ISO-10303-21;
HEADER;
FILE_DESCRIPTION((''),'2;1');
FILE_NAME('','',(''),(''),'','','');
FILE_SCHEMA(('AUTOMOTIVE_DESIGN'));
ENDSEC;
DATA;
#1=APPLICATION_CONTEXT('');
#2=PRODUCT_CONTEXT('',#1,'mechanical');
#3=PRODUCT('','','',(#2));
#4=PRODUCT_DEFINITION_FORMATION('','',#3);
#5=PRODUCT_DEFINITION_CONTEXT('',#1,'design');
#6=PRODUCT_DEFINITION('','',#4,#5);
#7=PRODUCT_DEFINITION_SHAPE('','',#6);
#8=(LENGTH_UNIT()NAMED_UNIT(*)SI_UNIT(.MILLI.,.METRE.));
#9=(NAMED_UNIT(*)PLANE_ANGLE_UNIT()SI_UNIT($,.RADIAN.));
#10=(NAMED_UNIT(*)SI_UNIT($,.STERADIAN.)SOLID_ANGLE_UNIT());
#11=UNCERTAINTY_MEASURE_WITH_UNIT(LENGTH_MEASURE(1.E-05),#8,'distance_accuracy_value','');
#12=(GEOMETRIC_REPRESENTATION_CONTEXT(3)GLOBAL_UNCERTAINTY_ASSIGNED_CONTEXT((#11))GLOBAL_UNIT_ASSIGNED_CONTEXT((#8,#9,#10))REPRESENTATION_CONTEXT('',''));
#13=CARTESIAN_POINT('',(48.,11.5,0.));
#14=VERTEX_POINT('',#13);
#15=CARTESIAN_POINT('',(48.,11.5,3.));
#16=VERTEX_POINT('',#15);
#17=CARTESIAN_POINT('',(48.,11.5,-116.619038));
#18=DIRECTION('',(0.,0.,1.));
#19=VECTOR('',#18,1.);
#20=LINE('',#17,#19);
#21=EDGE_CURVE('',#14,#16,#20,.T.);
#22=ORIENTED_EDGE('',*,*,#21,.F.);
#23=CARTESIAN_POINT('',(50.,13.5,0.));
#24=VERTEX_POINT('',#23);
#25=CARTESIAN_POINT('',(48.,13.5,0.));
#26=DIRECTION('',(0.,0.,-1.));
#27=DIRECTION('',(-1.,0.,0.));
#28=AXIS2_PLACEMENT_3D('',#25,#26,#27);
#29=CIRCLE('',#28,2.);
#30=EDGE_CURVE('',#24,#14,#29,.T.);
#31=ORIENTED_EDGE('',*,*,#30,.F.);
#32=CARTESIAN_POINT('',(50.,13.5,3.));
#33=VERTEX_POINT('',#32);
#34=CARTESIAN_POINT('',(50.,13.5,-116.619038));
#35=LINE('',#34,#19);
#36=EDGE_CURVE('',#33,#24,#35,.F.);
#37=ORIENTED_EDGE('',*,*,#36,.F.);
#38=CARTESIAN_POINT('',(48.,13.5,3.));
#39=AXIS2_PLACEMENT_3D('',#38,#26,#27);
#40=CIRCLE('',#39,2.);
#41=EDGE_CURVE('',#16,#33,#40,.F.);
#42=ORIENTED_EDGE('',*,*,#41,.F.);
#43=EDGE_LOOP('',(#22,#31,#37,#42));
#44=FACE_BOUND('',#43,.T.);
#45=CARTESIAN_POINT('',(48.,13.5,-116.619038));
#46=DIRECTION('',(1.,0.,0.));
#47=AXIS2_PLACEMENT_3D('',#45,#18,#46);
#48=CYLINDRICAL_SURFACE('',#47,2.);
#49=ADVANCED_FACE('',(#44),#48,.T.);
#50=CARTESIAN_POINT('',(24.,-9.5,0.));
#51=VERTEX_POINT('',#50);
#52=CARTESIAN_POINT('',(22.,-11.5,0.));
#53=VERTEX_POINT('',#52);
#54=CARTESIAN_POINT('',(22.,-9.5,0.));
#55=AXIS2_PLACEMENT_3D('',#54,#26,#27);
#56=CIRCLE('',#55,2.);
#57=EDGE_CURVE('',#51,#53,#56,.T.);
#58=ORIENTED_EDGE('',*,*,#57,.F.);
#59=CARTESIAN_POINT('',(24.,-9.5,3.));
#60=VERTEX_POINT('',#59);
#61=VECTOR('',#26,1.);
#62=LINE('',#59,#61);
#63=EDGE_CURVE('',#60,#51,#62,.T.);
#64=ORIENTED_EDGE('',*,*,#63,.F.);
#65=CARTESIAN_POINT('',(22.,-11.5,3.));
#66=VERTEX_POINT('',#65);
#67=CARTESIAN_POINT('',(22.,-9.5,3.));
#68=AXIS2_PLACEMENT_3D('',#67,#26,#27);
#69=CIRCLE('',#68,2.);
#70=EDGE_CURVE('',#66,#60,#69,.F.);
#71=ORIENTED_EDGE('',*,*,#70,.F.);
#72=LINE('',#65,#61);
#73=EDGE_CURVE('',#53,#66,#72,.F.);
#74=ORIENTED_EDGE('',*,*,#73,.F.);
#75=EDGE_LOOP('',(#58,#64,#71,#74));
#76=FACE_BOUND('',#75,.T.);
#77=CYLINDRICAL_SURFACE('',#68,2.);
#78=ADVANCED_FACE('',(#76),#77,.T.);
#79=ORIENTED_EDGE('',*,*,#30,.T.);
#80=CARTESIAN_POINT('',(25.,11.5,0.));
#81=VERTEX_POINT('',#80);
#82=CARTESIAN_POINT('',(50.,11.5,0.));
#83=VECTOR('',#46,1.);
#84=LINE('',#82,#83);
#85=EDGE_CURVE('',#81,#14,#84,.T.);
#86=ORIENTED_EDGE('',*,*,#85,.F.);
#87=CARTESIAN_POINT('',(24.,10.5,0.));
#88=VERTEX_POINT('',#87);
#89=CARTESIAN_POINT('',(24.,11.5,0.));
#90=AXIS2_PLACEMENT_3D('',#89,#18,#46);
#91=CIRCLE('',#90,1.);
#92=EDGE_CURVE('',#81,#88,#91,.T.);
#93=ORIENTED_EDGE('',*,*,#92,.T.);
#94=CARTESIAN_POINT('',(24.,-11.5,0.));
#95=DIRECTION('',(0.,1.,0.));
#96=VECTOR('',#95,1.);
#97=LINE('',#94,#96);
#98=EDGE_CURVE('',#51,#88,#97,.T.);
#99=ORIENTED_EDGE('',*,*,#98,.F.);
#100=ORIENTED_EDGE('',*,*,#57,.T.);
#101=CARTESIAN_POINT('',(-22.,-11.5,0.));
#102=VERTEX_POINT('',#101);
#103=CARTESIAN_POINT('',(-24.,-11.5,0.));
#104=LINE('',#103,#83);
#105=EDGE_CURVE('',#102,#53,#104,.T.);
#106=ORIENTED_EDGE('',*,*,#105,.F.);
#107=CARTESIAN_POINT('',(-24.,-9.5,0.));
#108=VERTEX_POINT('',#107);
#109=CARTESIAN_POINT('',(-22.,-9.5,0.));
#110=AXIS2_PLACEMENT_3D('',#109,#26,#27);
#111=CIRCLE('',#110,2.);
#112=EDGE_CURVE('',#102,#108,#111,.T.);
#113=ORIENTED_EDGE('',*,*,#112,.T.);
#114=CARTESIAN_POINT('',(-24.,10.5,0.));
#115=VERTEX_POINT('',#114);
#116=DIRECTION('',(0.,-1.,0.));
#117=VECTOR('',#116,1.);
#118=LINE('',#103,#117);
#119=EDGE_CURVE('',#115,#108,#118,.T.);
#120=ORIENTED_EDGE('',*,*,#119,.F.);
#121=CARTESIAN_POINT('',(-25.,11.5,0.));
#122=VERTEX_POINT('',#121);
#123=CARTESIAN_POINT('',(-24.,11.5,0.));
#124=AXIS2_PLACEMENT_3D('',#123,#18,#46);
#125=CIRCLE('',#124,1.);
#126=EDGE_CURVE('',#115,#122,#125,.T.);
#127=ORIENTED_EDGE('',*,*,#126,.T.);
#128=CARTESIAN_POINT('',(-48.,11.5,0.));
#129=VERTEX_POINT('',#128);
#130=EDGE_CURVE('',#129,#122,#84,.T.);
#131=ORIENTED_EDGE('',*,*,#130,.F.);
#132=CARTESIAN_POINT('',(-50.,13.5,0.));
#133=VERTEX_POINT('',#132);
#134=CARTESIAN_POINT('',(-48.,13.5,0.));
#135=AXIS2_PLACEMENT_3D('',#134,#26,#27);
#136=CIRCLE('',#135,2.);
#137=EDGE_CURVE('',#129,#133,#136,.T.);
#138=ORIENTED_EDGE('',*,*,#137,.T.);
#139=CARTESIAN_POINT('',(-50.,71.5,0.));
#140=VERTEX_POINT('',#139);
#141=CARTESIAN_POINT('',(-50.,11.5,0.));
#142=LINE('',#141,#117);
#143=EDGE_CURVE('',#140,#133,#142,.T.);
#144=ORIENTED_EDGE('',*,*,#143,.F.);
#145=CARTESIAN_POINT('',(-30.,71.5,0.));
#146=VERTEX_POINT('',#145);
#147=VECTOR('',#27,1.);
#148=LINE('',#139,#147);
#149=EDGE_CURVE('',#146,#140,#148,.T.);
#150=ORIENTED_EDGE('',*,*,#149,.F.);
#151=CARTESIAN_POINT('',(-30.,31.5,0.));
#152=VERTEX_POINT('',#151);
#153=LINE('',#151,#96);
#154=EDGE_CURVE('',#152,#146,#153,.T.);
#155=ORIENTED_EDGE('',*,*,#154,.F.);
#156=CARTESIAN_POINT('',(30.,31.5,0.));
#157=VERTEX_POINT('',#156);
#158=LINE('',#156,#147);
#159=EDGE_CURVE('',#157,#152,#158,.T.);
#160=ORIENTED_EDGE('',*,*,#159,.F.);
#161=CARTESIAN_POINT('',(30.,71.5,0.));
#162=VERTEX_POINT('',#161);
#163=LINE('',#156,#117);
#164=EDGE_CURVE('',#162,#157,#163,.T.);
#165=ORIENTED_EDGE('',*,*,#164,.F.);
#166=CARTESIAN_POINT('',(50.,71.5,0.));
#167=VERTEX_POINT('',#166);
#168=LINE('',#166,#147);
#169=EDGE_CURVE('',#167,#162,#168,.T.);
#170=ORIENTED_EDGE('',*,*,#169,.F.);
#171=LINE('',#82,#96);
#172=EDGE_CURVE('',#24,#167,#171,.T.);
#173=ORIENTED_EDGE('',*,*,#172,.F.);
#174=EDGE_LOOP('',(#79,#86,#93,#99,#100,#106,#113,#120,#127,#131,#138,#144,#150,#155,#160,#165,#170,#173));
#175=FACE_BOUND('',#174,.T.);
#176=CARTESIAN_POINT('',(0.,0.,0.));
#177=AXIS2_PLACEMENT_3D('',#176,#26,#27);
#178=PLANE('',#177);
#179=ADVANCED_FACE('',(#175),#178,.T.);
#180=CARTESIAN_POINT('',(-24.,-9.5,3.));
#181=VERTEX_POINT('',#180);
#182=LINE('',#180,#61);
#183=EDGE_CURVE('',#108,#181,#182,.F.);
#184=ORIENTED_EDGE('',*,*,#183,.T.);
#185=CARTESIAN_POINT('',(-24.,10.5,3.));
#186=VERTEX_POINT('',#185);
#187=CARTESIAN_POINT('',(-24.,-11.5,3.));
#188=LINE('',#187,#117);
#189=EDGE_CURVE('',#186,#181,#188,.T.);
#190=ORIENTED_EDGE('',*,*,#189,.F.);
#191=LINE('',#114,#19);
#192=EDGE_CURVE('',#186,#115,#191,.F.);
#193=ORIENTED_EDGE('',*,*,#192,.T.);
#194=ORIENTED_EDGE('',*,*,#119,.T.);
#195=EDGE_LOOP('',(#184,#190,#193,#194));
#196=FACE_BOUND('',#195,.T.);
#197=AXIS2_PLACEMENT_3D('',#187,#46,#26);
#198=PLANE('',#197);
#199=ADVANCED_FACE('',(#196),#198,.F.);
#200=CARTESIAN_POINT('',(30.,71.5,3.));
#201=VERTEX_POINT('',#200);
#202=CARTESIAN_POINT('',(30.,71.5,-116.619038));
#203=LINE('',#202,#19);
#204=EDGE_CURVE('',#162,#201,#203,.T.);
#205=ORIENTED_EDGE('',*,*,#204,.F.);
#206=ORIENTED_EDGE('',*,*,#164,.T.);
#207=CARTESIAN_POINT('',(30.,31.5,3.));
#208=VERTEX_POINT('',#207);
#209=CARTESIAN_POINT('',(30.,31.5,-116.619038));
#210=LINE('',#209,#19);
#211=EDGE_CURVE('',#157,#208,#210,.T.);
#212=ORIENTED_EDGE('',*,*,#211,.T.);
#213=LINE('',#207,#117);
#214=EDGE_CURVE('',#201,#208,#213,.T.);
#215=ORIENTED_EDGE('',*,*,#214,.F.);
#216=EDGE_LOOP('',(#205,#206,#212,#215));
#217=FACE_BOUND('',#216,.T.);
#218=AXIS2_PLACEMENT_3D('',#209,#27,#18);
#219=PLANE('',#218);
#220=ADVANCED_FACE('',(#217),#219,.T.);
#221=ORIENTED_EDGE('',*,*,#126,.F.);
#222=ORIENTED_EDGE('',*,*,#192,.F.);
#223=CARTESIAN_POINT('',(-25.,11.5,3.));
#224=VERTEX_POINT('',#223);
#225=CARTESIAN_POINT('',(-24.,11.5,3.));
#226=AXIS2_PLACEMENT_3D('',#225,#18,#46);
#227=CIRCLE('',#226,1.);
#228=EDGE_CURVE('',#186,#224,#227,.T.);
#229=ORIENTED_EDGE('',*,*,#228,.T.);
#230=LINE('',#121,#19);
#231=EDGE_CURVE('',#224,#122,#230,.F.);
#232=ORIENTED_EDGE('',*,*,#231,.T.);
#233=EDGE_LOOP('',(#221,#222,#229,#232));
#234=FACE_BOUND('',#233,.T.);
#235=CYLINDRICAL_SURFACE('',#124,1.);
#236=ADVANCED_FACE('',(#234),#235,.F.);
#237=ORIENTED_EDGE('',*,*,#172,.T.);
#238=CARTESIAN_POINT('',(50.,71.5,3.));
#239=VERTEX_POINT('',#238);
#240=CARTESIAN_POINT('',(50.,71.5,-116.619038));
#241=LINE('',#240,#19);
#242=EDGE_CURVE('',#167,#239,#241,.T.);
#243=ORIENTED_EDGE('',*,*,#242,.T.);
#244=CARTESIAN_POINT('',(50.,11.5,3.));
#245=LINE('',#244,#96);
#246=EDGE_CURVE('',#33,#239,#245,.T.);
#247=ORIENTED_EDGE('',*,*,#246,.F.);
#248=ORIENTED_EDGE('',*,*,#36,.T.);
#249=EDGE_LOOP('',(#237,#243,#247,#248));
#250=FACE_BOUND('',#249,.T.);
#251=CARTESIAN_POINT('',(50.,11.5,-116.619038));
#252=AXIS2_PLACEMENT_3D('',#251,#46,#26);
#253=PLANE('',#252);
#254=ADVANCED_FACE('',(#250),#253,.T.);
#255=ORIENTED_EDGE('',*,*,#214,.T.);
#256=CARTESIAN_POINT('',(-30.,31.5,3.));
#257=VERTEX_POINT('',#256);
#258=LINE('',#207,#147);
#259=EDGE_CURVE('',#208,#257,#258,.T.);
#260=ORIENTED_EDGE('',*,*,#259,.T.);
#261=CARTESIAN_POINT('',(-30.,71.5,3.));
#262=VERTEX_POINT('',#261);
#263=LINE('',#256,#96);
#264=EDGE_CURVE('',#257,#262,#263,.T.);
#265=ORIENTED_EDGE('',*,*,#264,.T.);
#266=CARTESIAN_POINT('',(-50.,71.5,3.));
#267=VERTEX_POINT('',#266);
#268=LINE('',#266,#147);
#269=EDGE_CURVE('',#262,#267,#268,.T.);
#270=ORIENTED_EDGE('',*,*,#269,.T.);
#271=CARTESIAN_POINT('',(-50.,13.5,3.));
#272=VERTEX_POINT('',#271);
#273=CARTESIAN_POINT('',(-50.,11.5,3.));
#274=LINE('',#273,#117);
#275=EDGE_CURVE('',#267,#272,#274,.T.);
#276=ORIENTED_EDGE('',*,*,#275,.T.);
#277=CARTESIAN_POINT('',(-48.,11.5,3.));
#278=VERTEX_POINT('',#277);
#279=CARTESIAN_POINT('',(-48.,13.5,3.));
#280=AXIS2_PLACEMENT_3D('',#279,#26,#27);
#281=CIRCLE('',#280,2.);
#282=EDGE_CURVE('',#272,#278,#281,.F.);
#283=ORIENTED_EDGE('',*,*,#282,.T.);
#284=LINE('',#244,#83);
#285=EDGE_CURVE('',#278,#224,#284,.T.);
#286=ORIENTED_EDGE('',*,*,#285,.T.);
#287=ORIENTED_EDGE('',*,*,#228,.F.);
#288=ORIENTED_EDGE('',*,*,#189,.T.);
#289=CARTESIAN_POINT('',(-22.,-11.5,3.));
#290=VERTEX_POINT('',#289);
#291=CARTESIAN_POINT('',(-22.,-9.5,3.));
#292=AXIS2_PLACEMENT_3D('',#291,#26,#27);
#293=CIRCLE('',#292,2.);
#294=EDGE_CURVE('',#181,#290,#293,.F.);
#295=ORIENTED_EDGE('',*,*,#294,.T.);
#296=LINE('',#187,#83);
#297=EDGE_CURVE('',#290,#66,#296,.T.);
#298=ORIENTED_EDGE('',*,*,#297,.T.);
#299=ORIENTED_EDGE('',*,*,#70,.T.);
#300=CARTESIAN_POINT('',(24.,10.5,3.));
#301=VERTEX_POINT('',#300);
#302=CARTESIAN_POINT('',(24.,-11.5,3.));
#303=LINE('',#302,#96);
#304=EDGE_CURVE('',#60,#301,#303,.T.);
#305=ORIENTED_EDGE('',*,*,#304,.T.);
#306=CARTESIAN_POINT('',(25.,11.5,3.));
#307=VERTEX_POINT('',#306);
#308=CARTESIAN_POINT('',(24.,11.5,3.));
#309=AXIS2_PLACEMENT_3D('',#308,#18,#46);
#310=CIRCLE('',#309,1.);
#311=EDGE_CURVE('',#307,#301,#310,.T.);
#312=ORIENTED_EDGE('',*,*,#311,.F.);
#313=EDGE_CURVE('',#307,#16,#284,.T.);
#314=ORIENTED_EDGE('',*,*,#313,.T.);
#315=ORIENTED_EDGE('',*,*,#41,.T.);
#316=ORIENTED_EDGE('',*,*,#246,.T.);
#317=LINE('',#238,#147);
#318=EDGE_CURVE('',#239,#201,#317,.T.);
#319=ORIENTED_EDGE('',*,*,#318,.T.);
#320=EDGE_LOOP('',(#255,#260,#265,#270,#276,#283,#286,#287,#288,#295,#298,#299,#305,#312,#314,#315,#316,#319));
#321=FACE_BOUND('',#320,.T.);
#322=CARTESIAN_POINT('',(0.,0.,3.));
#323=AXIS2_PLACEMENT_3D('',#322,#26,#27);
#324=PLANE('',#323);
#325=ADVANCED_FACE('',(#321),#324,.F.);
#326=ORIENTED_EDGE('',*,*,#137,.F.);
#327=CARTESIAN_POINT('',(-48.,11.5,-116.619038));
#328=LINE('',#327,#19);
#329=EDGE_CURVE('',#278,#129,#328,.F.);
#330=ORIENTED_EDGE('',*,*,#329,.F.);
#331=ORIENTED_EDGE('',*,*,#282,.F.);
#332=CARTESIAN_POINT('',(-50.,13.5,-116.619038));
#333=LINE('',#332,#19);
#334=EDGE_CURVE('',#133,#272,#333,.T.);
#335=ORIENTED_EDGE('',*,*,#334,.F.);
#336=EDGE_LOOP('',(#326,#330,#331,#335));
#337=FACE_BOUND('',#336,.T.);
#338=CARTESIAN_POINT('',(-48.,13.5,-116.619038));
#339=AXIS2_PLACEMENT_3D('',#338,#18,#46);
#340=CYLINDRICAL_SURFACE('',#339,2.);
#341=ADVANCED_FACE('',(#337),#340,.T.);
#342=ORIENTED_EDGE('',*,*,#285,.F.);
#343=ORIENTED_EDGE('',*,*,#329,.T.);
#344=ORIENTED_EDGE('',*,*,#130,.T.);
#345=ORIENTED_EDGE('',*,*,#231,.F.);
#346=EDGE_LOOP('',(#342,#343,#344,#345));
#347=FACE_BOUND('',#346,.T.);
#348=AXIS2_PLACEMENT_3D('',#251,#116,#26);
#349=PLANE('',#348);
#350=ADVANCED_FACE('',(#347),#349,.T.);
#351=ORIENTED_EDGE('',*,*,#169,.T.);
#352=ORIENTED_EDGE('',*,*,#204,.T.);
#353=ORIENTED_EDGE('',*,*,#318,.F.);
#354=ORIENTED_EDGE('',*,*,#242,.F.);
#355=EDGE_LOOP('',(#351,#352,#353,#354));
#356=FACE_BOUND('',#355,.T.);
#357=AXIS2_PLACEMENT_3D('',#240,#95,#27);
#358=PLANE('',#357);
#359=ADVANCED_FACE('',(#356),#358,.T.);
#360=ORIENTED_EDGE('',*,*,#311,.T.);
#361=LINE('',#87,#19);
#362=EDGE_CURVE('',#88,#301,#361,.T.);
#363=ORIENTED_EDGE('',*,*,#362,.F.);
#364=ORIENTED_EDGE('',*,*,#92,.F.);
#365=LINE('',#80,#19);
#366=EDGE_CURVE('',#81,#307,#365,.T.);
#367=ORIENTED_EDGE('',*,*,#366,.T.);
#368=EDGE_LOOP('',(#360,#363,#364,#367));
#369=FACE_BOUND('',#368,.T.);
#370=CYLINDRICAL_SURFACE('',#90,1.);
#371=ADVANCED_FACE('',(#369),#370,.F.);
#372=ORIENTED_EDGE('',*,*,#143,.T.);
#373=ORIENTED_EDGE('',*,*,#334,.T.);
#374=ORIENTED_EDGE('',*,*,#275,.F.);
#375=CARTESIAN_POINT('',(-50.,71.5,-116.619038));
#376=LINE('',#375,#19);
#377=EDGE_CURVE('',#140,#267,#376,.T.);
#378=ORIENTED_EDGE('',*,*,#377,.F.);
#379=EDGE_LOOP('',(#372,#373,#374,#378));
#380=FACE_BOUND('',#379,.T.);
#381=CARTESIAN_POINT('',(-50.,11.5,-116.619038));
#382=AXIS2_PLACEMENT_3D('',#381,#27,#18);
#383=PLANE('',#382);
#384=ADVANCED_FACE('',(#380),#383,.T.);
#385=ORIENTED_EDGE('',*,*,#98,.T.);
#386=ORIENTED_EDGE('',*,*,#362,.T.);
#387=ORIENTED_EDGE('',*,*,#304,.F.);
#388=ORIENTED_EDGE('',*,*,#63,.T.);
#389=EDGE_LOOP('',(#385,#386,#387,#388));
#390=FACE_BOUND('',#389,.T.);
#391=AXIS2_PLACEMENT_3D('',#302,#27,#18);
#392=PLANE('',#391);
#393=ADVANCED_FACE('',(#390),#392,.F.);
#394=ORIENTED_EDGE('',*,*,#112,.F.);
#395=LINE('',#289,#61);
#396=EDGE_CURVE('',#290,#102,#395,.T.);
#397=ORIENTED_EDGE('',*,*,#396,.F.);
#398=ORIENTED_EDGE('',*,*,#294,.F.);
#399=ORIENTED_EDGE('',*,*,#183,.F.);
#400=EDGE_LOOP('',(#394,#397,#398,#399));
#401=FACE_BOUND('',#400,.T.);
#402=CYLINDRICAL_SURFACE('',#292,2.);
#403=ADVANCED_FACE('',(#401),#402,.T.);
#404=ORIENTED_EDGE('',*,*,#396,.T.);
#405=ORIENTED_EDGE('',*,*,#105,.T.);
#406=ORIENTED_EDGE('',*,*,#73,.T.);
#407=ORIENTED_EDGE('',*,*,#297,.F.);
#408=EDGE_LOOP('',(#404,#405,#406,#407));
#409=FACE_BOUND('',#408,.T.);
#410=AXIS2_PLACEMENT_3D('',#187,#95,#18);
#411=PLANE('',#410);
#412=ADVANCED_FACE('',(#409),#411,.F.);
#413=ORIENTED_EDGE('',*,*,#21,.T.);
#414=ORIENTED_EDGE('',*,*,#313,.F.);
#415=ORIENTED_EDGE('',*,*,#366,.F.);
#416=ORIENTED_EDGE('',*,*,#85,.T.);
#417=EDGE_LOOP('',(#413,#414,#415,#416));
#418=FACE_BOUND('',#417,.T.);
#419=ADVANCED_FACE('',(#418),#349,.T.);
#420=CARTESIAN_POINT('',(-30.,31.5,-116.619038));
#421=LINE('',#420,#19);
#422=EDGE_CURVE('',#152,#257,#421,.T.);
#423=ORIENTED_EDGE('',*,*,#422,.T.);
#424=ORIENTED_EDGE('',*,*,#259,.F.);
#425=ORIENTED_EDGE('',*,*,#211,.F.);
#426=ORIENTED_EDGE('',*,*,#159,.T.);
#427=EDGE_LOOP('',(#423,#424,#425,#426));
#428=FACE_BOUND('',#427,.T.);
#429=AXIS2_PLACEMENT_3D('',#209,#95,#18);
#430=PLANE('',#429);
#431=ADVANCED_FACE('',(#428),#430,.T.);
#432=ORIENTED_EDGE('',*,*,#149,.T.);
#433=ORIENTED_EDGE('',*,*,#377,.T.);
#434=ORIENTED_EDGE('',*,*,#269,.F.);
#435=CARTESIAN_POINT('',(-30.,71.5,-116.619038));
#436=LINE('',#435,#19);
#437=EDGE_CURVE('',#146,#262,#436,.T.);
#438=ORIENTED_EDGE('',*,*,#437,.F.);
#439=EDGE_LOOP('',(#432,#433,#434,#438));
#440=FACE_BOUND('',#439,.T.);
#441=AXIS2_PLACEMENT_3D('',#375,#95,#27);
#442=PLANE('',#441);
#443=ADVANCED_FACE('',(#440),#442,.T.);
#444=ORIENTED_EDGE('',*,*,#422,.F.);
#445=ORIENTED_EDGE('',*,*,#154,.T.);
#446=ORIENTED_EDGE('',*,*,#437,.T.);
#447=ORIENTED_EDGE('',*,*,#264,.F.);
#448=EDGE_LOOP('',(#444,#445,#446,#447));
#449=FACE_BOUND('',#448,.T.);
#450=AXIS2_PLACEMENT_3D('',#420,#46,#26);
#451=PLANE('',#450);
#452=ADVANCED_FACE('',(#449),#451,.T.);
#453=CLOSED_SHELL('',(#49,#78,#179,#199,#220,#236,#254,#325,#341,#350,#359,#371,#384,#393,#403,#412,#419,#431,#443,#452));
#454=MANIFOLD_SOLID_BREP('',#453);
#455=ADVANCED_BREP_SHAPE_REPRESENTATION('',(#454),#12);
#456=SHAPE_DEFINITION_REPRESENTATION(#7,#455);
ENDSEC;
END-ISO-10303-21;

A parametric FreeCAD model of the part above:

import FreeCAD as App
import Part
import Sketcher
Q = App.Units.Quantity


def edges_at(feature, points):
    """Names of the edges that pass closest to the given points."""
    edges = feature.Shape.Edges
    near = lambda p: min(range(len(edges)), key=lambda i: edges[i].distToShape(Part.Vertex(*p))[0])
    return sorted({f"Edge{near(p) + 1}" for p in points})

doc = App.newDocument("Part")
body = doc.addObject("PartDesign::Body", "Body")

# Sketch on XY plane
sketch1 = body.newObject("Sketcher::SketchObject", "Sketch")
sketch1.AttachmentSupport = (doc.getObject("XY_Plane"), [""])
sketch1.MapMode = "FlatFace"
sketch1.addGeometry([
    Part.LineSegment(App.Vector(-24, 12, 0), App.Vector(-24, -12, 0)),
    Part.LineSegment(App.Vector(-24, -12, 0), App.Vector(24, -12, 0)),
    Part.LineSegment(App.Vector(24, -12, 0), App.Vector(24, 12, 0)),
    Part.LineSegment(App.Vector(24, 12, 0), App.Vector(-24, 12, 0)),
], False)
sketch1.addConstraint([
    Sketcher.Constraint("Coincident", 0, 2, 1, 1),
    Sketcher.Constraint("Coincident", 1, 2, 2, 1),
    Sketcher.Constraint("Coincident", 2, 2, 3, 1),
    Sketcher.Constraint("Coincident", 3, 2, 0, 1),
    Sketcher.Constraint("Vertical", 0),
    Sketcher.Constraint("Horizontal", 1),
    Sketcher.Constraint("Vertical", 2),
    Sketcher.Constraint("Horizontal", 3),
    Sketcher.Constraint("Symmetric", 0, 2, 2, 2, -1, 1),
    Sketcher.Constraint("DistanceX", 1, 1, 1, 2, Q("48 mm")),
    Sketcher.Constraint("DistanceY", 0, 2, 0, 1, Q("23 mm")),
])
pad1 = body.newObject("PartDesign::Pad", "Pad")
pad1.Profile = sketch1
pad1.Length = 3

# Sketch on XY plane
sketch2 = body.newObject("Sketcher::SketchObject", "Sketch001")
sketch2.AttachmentSupport = (doc.getObject("XY_Plane"), [""])
sketch2.MapMode = "FlatFace"
sketch2.AttachmentOffset = App.Placement(App.Vector(0, 0, 3), App.Rotation())
sketch2.addGeometry([
    Part.LineSegment(App.Vector(-50, 12, 0), App.Vector(50, 12, 0)),  # 0
    Part.LineSegment(App.Vector(50, 12, 0), App.Vector(50, 72, 0)),  # 1
    Part.LineSegment(App.Vector(50, 72, 0), App.Vector(30, 72, 0)),  # 2
    Part.LineSegment(App.Vector(30, 72, 0), App.Vector(30, 32, 0)),  # 3
    Part.LineSegment(App.Vector(30, 32, 0), App.Vector(-30, 32, 0)),  # 4
    Part.LineSegment(App.Vector(-30, 32, 0), App.Vector(-30, 72, 0)),  # 5
    Part.LineSegment(App.Vector(-30, 72, 0), App.Vector(-50, 72, 0)),  # 6
    Part.LineSegment(App.Vector(-50, 72, 0), App.Vector(-50, 12, 0)),  # 7
], False)
sketch2.addConstraint([
    Sketcher.Constraint("Coincident", 0, 2, 1, 1),
    Sketcher.Constraint("Coincident", 1, 2, 2, 1),
    Sketcher.Constraint("Coincident", 2, 2, 3, 1),
    Sketcher.Constraint("Coincident", 3, 2, 4, 1),
    Sketcher.Constraint("Coincident", 4, 2, 5, 1),
    Sketcher.Constraint("Coincident", 5, 2, 6, 1),
    Sketcher.Constraint("Coincident", 6, 2, 7, 1),
    Sketcher.Constraint("Coincident", 7, 2, 0, 1),
    Sketcher.Constraint("Horizontal", 0),
    Sketcher.Constraint("Vertical", 1),
    Sketcher.Constraint("Horizontal", 2),
    Sketcher.Constraint("Vertical", 3),
    Sketcher.Constraint("Horizontal", 4),
    Sketcher.Constraint("Vertical", 5),
    Sketcher.Constraint("Horizontal", 6),
    Sketcher.Constraint("Vertical", 7),
    Sketcher.Constraint("Symmetric", 2, 2, 5, 2, -2),
    Sketcher.Constraint("Equal", 2, 6),
    Sketcher.Constraint("Equal", 4, 1),
    Sketcher.Constraint("DistanceX", 0, 1, 0, 2, Q("100 mm")),
    Sketcher.Constraint("DistanceX", 2, 2, 2, 1, Q("20 mm")),
    Sketcher.Constraint("DistanceY", 3, 2, 3, 1, Q("40 mm")),
    Sketcher.Constraint("DistanceY", -1, 1, 0, 2, Q("11.5 mm")),
])
pad2 = body.newObject("PartDesign::Pad", "Pad001")
pad2.Profile = sketch2
pad2.Length = 3
pad2.Reversed = True

# Sketch on XY plane
sketch3 = body.newObject("Sketcher::SketchObject", "Sketch002")
sketch3.AttachmentSupport = (doc.getObject("XY_Plane"), [""])
sketch3.MapMode = "FlatFace"
sketch3.AttachmentOffset = App.Placement(App.Vector(0, 0, 3), App.Rotation())
sketch3.addGeometry([
    Part.Circle(App.Vector(-24, 11.5, 0), App.Vector(0, 0, 1), 1),
    Part.Circle(App.Vector(24, 11.5, 0), App.Vector(0, 0, 1), 1),
], False)
sketch3.addConstraint([
    Sketcher.Constraint("Equal", 0, 1),
    Sketcher.Constraint("Symmetric", 0, 3, 1, 3, -2),
    Sketcher.Constraint("Diameter", 0, Q("2 mm")),
    Sketcher.Constraint("DistanceX", 0, 3, -1, 1, Q("24 mm")),
    Sketcher.Constraint("DistanceY", -1, 1, 0, 3, Q("11.5 mm")),
])
pocket1 = body.newObject("PartDesign::Pocket", "Pocket")
pocket1.Profile = sketch3
pocket1.Type = "ThroughAll"
doc.recompute()

fillet = body.newObject("PartDesign::Fillet", "Fillet")
fillet.Base = (pocket1, edges_at(pocket1, [
    (50, 11.5, 1.5),
    (-50, 11.5, 1.5),
    (24, -11.5, 1.5),
    (-24, -11.5, 1.5),
]))
fillet.Radius = 2

doc.recompute()
